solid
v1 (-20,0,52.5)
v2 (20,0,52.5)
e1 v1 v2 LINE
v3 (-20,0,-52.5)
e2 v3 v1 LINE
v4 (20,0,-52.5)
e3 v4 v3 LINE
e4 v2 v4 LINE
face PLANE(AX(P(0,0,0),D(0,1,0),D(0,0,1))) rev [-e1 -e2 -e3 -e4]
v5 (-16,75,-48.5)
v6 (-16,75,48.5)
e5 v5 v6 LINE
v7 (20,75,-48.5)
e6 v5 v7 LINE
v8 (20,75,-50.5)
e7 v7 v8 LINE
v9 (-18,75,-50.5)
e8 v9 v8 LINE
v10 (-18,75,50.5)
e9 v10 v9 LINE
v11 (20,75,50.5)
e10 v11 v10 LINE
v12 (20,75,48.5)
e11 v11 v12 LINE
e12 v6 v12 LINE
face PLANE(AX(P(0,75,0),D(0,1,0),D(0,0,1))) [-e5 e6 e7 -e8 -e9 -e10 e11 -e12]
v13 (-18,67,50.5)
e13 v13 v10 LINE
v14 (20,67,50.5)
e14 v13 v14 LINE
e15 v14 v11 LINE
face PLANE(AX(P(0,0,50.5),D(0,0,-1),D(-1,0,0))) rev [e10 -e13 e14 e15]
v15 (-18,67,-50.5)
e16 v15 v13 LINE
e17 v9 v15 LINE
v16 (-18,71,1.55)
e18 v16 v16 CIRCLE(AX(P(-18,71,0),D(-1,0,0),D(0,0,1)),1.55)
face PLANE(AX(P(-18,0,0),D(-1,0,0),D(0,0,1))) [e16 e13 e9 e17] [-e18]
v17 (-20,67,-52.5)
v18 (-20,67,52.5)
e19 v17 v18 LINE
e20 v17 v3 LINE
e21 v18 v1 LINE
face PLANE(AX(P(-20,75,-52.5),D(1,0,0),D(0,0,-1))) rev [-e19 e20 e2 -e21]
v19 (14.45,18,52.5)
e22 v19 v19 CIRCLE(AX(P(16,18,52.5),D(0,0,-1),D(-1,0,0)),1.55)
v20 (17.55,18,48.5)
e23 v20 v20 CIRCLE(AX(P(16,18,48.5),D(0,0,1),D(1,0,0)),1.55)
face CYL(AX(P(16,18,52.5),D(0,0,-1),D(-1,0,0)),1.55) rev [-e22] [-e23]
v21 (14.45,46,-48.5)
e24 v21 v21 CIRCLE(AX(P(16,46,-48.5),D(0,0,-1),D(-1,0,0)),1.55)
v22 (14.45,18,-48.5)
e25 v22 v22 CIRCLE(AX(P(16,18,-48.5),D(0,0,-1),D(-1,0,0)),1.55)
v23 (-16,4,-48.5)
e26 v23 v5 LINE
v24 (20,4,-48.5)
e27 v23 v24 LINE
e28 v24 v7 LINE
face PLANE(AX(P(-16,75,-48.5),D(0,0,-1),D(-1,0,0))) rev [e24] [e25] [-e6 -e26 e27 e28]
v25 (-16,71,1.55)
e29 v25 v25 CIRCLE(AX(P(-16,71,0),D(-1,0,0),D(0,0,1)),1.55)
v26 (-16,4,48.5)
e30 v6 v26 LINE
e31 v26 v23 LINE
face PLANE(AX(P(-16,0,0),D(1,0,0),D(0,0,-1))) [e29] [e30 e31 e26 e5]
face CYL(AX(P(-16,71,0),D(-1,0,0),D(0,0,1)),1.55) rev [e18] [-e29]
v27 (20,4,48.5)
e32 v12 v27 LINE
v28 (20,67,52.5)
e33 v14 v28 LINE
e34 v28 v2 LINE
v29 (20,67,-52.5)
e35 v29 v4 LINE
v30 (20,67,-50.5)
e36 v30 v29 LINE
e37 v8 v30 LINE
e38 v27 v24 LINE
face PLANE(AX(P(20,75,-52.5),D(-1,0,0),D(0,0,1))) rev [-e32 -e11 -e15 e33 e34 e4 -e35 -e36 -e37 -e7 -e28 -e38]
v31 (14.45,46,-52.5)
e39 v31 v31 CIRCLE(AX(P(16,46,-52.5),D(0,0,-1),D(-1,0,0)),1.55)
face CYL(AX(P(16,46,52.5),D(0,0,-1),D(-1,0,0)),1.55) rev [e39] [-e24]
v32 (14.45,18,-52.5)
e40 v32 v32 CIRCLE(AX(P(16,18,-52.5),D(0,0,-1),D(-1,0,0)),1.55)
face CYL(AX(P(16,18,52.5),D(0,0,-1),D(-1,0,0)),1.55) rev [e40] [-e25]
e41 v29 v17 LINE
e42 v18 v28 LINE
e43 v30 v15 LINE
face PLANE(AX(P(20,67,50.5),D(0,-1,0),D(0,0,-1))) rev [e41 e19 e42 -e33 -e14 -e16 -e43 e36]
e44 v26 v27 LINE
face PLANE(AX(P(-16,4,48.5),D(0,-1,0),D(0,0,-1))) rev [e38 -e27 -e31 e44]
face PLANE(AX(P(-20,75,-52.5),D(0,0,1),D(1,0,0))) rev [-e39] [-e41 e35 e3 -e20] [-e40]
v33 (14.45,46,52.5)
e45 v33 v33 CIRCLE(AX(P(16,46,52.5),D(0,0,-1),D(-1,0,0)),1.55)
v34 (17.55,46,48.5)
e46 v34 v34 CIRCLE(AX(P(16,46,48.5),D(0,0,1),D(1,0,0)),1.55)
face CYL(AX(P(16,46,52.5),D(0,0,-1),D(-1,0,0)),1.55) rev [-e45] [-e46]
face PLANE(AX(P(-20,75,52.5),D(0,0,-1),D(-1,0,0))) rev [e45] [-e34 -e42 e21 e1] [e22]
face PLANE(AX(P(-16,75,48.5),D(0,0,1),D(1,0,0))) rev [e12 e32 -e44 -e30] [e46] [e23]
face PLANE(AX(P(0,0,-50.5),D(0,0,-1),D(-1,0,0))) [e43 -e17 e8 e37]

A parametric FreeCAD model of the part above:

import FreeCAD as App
import Part
import Sketcher

V = App.Vector


def add_polygon(sketch, points):
    """Adds a closed chain of lines whose ends are joined by coincident constraints."""
    first, n = sketch.GeometryCount, len(points)
    for a, b in zip(points, points[1:] + points[:1]):
        sketch.addGeometry(Part.LineSegment(App.Vector(*a, 0), App.Vector(*b, 0)), False)
    for i in range(n):
        sketch.addConstraint(Sketcher.Constraint("Coincident", first + i, 2, first + (i + 1) % n, 1))

doc = App.newDocument("Part")
body = doc.addObject("PartDesign::Body", "Body")

# Sketch on XZ plane
sketch1 = body.newObject("Sketcher::SketchObject", "Sketch")
sketch1.AttachmentSupport = (doc.getObject("XZ_Plane"), [""])
sketch1.MapMode = "FlatFace"
add_polygon(sketch1, [(-20, -52), (-20, 52), (20, 52), (20, -52)])  # lines 0-3
sketch1.addConstraint(Sketcher.Constraint("Vertical", 0))
sketch1.addConstraint(Sketcher.Constraint("Horizontal", 1))
sketch1.addConstraint(Sketcher.Constraint("Vertical", 2))
sketch1.addConstraint(Sketcher.Constraint("Horizontal", 3))
sketch1.addConstraint(Sketcher.Constraint("Symmetric", 0, 2, 2, 2, -1, 1))
sketch1.addConstraint(Sketcher.Constraint("DistanceX", 1, 1, 1, 2, 40.0))
sketch1.addConstraint(Sketcher.Constraint("DistanceY", 0, 1, 0, 2, 105.0))
pad1 = body.newObject("PartDesign::Pad", "Pad")
pad1.Profile = sketch1
pad1.Length = 75
pad1.Reversed = True

# Sketch on YZ plane
sketch2 = body.newObject("Sketcher::SketchObject", "Sketch001")
sketch2.AttachmentSupport = (doc.getObject("YZ_Plane"), [""])
sketch2.MapMode = "FlatFace"
sketch2.AttachmentOffset = App.Placement(V(0, 0, 20), App.Rotation())
add_polygon(sketch2, [(75, 48), (4, 48), (4, -48), (75, -48)])  # lines 0-3
sketch2.addConstraint(Sketcher.Constraint("Horizontal", 0))
sketch2.addConstraint(Sketcher.Constraint("Vertical", 1))
sketch2.addConstraint(Sketcher.Constraint("Horizontal", 2))
sketch2.addConstraint(Sketcher.Constraint("Vertical", 3))
sketch2.addConstraint(Sketcher.Constraint("DistanceX", 0, 2, 0, 1, 71.0))
sketch2.addConstraint(Sketcher.Constraint("DistanceY", 1, 2, 1, 1, 97.0))
sketch2.addConstraint(Sketcher.Constraint("DistanceX", -1, 1, 0, 2, 4.0))
sketch2.addConstraint(Sketcher.Constraint("DistanceY", -1, 1, 0, 2, 48.5))
pocket1 = body.newObject("PartDesign::Pocket", "Pocket")
pocket1.Profile = sketch2
pocket1.Length = 36

# Sketch on XY plane
sketch3 = body.newObject("Sketcher::SketchObject", "Sketch002")
sketch3.AttachmentSupport = (doc.getObject("XY_Plane"), [""])
sketch3.MapMode = "FlatFace"
sketch3.AttachmentOffset = App.Placement(V(0, 0, 52.5), App.Rotation())
add_polygon(sketch3, [(-20, 75), (-20, 67), (20, 67), (20, 75)])  # lines 0-3
sketch3.addConstraint(Sketcher.Constraint("Vertical", 0))
sketch3.addConstraint(Sketcher.Constraint("Horizontal", 1))
sketch3.addConstraint(Sketcher.Constraint("Vertical", 2))
sketch3.addConstraint(Sketcher.Constraint("Horizontal", 3))
sketch3.addConstraint(Sketcher.Constraint("DistanceX", 1, 1, 1, 2, 40.0))
sketch3.addConstraint(Sketcher.Constraint("DistanceY", 0, 2, 0, 1, 8.0))
sketch3.addConstraint(Sketcher.Constraint("DistanceX", 0, 2, -1, 1, 20.0))
sketch3.addConstraint(Sketcher.Constraint("DistanceY", -1, 1, 0, 2, 67.0))
pocket2 = body.newObject("PartDesign::Pocket", "Pocket001")
pocket2.Profile = sketch3
pocket2.Length = 2

# Sketch on XY plane
sketch4 = body.newObject("Sketcher::SketchObject", "Sketch003")
sketch4.AttachmentSupport = (doc.getObject("XY_Plane"), [""])
sketch4.MapMode = "FlatFace"
sketch4.AttachmentOffset = App.Placement(V(0, 0, -52.5), App.Rotation())
add_polygon(sketch4, [(20, 75), (20, 67), (-20, 67), (-20, 75)])  # lines 0-3
sketch4.addConstraint(Sketcher.Constraint("Vertical", 0))
sketch4.addConstraint(Sketcher.Constraint("Horizontal", 1))
sketch4.addConstraint(Sketcher.Constraint("Vertical", 2))
sketch4.addConstraint(Sketcher.Constraint("Horizontal", 3))
sketch4.addConstraint(Sketcher.Constraint("DistanceX", 1, 2, 1, 1, 40.0))
sketch4.addConstraint(Sketcher.Constraint("DistanceY", 0, 2, 0, 1, 8.0))
sketch4.addConstraint(Sketcher.Constraint("DistanceX", -1, 1, 0, 2, 20.0))
sketch4.addConstraint(Sketcher.Constraint("DistanceY", -1, 1, 0, 2, 67.0))
pocket3 = body.newObject("PartDesign::Pocket", "Pocket002")
pocket3.Profile = sketch4
pocket3.Length = 2
pocket3.Reversed = True

# Sketch on YZ plane
sketch5 = body.newObject("Sketcher::SketchObject", "Sketch004")
sketch5.AttachmentSupport = (doc.getObject("YZ_Plane"), [""])
sketch5.MapMode = "FlatFace"
sketch5.AttachmentOffset = App.Placement(V(0, 0, -20), App.Rotation())
add_polygon(sketch5, [(75, -50), (67, -50), (67, 50), (75, 50)])  # lines 0-3
sketch5.addConstraint(Sketcher.Constraint("Horizontal", 0))
sketch5.addConstraint(Sketcher.Constraint("Vertical", 1))
sketch5.addConstraint(Sketcher.Constraint("Horizontal", 2))
sketch5.addConstraint(Sketcher.Constraint("Vertical", 3))
sketch5.addConstraint(Sketcher.Constraint("DistanceX", 0, 2, 0, 1, 8.0))
sketch5.addConstraint(Sketcher.Constraint("DistanceY", 1, 1, 1, 2, 101.0))
sketch5.addConstraint(Sketcher.Constraint("DistanceX", -1, 1, 0, 2, 67.0))
sketch5.addConstraint(Sketcher.Constraint("DistanceY", 0, 2, -1, 1, 50.5))
pocket4 = body.newObject("PartDesign::Pocket", "Pocket003")
pocket4.Profile = sketch5
pocket4.Length = 2
pocket4.Reversed = True

# Sketch on XY plane
sketch6 = body.newObject("Sketcher::SketchObject", "Sketch005")
sketch6.AttachmentSupport = (doc.getObject("XY_Plane"), [""])
sketch6.MapMode = "FlatFace"
sketch6.AttachmentOffset = App.Placement(V(0, 0, 48.5), App.Rotation())
sketch6.addGeometry(Part.Circle(V(16, 18, 0), V(0, 0, 1), 1.6), False)
sketch6.addGeometry(Part.Circle(V(16, 46, 0), V(0, 0, 1), 1.6), False)
sketch6.addConstraint(Sketcher.Constraint("Equal", 0, 1))
sketch6.addConstraint(Sketcher.Constraint("Vertical", 0, 3, 1, 3))
sketch6.addConstraint(Sketcher.Constraint("Diameter", 0, 3.1))
sketch6.addConstraint(Sketcher.Constraint("DistanceX", -1, 1, 0, 3, 16.0))
sketch6.addConstraint(Sketcher.Constraint("DistanceY", -1, 1, 0, 3, 18.0))
sketch6.addConstraint(Sketcher.Constraint("DistanceY", -1, 1, 1, 3, 46.0))
pocket5 = body.newObject("PartDesign::Pocket", "Pocket004")
pocket5.Profile = sketch6
pocket5.Type = "ThroughAll"
pocket5.Midplane = True

# Sketch on YZ plane
sketch7 = body.newObject("Sketcher::SketchObject", "Sketch006")
sketch7.AttachmentSupport = (doc.getObject("YZ_Plane"), [""])
sketch7.MapMode = "FlatFace"
sketch7.AttachmentOffset = App.Placement(V(0, 0, -18), App.Rotation())
sketch7.addGeometry(Part.Circle(V(71, 0, 0), V(0, 0, 1), 1.6), False)
sketch7.addConstraint(Sketcher.Constraint("PointOnObject", 0, 3, -1))
sketch7.addConstraint(Sketcher.Constraint("Diameter", 0, 3.1))
sketch7.addConstraint(Sketcher.Constraint("DistanceX", -1, 1, 0, 3, 71.0))
pocket6 = body.newObject("PartDesign::Pocket", "Pocket005")
pocket6.Profile = sketch7
pocket6.Length = 2
pocket6.Reversed = True

doc.recompute()
